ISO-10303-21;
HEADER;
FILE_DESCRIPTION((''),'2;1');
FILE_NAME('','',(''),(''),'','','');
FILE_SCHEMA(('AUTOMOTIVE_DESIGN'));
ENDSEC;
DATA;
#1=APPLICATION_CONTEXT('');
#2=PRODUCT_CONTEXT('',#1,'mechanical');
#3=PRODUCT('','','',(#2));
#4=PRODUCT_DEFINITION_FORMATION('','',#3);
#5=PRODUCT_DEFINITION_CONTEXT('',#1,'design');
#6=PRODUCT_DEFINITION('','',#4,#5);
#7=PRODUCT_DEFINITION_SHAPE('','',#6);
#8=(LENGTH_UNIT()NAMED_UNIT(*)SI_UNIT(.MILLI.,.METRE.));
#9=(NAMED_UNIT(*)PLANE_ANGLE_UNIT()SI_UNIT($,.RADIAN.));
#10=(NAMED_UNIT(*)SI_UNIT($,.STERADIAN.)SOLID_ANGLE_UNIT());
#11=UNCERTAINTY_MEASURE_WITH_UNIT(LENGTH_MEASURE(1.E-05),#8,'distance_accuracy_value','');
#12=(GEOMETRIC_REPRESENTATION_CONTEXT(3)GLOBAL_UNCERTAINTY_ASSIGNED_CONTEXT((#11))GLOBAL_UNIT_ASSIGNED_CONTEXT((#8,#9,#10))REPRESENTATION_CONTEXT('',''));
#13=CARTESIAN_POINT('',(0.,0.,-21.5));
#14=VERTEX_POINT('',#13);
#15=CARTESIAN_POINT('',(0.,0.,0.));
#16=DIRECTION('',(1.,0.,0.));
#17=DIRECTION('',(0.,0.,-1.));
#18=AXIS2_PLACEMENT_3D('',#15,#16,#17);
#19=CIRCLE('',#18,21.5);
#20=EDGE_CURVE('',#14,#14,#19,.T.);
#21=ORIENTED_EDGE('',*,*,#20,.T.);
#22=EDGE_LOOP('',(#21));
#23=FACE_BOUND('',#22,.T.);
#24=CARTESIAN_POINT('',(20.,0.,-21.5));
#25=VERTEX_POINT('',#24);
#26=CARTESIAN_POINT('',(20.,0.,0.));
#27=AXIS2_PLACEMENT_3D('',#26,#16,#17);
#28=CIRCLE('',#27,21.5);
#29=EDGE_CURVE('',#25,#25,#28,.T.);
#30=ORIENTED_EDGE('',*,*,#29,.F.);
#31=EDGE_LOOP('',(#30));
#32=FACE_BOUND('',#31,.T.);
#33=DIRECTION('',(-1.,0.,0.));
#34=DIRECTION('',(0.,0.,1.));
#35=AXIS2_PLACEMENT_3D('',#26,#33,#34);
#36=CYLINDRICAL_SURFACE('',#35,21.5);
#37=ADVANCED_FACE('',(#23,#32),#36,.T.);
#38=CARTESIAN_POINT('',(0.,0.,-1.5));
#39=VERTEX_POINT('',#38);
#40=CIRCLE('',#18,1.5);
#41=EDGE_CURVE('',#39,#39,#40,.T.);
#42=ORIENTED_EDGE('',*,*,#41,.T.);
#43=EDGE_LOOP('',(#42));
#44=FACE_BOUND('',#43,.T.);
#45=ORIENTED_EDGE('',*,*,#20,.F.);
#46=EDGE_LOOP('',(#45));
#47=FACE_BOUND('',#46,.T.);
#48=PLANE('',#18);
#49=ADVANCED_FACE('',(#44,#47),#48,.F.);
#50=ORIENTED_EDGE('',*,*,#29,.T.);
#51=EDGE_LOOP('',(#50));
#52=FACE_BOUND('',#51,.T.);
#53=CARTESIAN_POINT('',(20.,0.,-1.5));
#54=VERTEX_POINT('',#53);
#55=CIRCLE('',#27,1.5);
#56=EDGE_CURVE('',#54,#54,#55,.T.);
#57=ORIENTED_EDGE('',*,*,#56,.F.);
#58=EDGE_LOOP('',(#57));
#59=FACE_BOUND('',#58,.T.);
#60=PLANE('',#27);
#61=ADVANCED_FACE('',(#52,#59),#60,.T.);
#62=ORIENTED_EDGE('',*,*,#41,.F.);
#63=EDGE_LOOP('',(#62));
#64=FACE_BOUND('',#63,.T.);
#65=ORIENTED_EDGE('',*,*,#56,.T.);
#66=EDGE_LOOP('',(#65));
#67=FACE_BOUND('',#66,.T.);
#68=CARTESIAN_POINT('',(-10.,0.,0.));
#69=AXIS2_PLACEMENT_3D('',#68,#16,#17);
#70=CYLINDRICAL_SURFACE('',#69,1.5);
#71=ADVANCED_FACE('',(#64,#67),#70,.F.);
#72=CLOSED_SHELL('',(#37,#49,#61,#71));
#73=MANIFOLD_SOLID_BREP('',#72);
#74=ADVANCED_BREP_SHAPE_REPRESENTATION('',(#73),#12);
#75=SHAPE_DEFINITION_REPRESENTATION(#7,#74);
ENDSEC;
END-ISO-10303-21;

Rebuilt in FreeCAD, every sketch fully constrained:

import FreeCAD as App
import Part
import Sketcher

doc = App.newDocument("Part")
body = doc.addObject("PartDesign::Body", "Body")

# Sketch on YZ plane
sketch1 = body.newObject("Sketcher::SketchObject", "Sketch")
sketch1.AttachmentSupport = (doc.getObject("YZ_Plane"), [""])
sketch1.MapMode = "FlatFace"
sketch1.addGeometry(Part.Circle(App.Vector(0, 0, 0), App.Vector(0, 0, 1), 22), False)
sketch1.addConstraint([
    Sketcher.Constraint("Coincident", 0, 3, -1, 1),
    Sketcher.Constraint("Diameter", 0, 43.0),
])
pad1 = body.newObject("PartDesign::Pad", "Pad")
pad1.Profile = sketch1
pad1.Length = 20

# Sketch on YZ plane
sketch2 = body.newObject("Sketcher::SketchObject", "Sketch001")
sketch2.AttachmentSupport = (doc.getObject("YZ_Plane"), [""])
sketch2.MapMode = "FlatFace"
sketch2.AttachmentOffset = App.Placement(App.Vector(0, 0, 20), App.Rotation())
sketch2.addGeometry(Part.Circle(App.Vector(0, 0, 0), App.Vector(0, 0, 1), 1.5), False)
sketch2.addConstraint([
    Sketcher.Constraint("Coincident", 0, 3, -1, 1),
    Sketcher.Constraint("Diameter", 0, 3.0),
])
pocket1 = body.newObject("PartDesign::Pocket", "Pocket")
pocket1.Profile = sketch2
pocket1.Length = 30

doc.recompute()
